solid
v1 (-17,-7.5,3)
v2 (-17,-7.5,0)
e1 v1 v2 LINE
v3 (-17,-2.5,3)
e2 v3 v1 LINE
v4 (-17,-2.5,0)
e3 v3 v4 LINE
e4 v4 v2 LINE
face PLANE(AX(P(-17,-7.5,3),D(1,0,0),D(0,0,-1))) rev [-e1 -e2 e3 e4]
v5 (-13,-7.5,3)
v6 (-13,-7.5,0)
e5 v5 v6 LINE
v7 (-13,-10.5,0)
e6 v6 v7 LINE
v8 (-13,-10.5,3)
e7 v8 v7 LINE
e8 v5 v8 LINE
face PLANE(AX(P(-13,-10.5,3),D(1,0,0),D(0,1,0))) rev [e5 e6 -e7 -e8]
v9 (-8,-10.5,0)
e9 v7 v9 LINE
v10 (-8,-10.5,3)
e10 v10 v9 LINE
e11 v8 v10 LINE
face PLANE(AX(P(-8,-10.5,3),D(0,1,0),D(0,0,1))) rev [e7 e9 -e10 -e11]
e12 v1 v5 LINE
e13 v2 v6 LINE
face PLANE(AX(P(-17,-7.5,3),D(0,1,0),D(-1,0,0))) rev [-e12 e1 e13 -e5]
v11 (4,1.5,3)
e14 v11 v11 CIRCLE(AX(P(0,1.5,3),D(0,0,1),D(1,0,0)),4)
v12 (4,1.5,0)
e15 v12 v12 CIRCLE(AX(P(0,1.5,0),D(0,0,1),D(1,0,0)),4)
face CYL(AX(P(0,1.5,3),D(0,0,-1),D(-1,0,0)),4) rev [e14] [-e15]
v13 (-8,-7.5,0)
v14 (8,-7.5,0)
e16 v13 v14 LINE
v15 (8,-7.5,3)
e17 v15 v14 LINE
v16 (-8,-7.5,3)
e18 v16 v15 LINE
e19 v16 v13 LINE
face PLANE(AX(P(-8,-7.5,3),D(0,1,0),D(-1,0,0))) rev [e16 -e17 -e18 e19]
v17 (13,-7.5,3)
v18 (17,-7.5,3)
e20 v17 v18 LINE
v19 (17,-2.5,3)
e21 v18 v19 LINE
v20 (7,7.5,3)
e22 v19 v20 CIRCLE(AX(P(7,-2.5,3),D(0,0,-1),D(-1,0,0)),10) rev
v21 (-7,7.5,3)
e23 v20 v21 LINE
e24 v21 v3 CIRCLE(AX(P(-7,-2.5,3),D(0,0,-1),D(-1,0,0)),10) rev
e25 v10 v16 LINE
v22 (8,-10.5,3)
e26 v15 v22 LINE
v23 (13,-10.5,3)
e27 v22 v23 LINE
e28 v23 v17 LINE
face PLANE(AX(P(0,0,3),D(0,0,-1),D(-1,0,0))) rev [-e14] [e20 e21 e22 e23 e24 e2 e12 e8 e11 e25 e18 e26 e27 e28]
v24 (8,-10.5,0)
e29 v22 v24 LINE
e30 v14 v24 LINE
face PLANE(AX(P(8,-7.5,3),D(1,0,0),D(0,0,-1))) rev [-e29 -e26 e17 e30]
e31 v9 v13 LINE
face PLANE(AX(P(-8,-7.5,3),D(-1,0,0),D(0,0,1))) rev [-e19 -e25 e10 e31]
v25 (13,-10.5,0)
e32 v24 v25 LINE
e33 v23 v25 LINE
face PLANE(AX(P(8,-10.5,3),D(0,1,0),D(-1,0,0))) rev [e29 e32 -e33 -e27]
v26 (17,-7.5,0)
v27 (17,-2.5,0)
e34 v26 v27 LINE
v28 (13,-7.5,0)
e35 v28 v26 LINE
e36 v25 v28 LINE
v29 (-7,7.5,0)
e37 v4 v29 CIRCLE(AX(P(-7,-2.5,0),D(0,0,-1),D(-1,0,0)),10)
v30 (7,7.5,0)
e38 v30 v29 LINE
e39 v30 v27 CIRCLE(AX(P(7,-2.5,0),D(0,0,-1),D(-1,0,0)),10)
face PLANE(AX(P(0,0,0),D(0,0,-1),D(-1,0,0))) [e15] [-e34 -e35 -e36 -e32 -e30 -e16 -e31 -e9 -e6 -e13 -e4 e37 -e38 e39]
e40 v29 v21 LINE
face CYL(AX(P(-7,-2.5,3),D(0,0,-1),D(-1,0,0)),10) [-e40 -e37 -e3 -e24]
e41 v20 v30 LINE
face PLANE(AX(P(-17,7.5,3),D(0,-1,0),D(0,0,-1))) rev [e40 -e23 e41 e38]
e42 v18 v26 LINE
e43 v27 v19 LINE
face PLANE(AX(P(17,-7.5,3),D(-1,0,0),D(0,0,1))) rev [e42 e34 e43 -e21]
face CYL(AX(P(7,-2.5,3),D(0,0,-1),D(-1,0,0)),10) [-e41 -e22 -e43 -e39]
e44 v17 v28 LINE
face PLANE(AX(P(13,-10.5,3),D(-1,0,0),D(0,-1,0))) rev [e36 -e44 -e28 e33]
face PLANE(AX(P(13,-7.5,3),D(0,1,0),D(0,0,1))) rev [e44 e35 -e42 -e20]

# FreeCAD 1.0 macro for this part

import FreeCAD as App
import Part
import Sketcher

V = App.Vector
Q = App.Units.Quantity


def edges_at(feature, points):
    """Names of the edges that pass closest to the given points."""
    edges = feature.Shape.Edges
    near = lambda p: min(range(len(edges)), key=lambda i: edges[i].distToShape(Part.Vertex(*p))[0])
    return sorted({f"Edge{near(p) + 1}" for p in points})

doc = App.newDocument("Part")
body = doc.addObject("PartDesign::Body", "Body")

# Sketch on XY plane
sketch1 = doc.addObject("Sketcher::SketchObject", "Sketch")
body.addObject(sketch1)
sketch1.AttachmentSupport = (doc.XY_Plane, [""])
sketch1.MapMode = "FlatFace"
sketch1.addGeometry([
    Part.LineSegment(V(-17, -7.5, 0), V(-13, -7.5, 0)),  # 0
    Part.LineSegment(V(-13, -7.5, 0), V(-13, -10.5, 0)),  # 1
    Part.LineSegment(V(-13, -10.5, 0), V(-8, -10.5, 0)),  # 2
    Part.LineSegment(V(-8, -10.5, 0), V(-8, -7.5, 0)),  # 3
    Part.LineSegment(V(-8, -7.5, 0), V(8, -7.5, 0)),  # 4
    Part.LineSegment(V(8, -7.5, 0), V(8, -10.5, 0)),  # 5
    Part.LineSegment(V(8, -10.5, 0), V(13, -10.5, 0)),  # 6
    Part.LineSegment(V(13, -10.5, 0), V(13, -7.5, 0)),  # 7
    Part.LineSegment(V(13, -7.5, 0), V(17, -7.5, 0)),  # 8
    Part.LineSegment(V(17, -7.5, 0), V(17, 7.5, 0)),  # 9
    Part.LineSegment(V(17, 7.5, 0), V(-17, 7.5, 0)),  # 10
    Part.LineSegment(V(-17, 7.5, 0), V(-17, -7.5, 0)),  # 11
    Part.Circle(V(0, 1.5, 0), V(0, 0, 1), 4),  # 12
], False)
sketch1.addConstraint([
    Sketcher.Constraint("Coincident", 0, 2, 1, 1),
    Sketcher.Constraint("Coincident", 1, 2, 2, 1),
    Sketcher.Constraint("Coincident", 2, 2, 3, 1),
    Sketcher.Constraint("Coincident", 3, 2, 4, 1),
    Sketcher.Constraint("Coincident", 4, 2, 5, 1),
    Sketcher.Constraint("Coincident", 5, 2, 6, 1),
    Sketcher.Constraint("Coincident", 6, 2, 7, 1),
    Sketcher.Constraint("Coincident", 7, 2, 8, 1),
    Sketcher.Constraint("Coincident", 8, 2, 9, 1),
    Sketcher.Constraint("Coincident", 9, 2, 10, 1),
    Sketcher.Constraint("Coincident", 10, 2, 11, 1),
    Sketcher.Constraint("Coincident", 11, 2, 0, 1),
    Sketcher.Constraint("Horizontal", 0),
    Sketcher.Constraint("Vertical", 1),
    Sketcher.Constraint("Horizontal", 2),
    Sketcher.Constraint("Vertical", 3),
    Sketcher.Constraint("Horizontal", 4),
    Sketcher.Constraint("Vertical", 5),
    Sketcher.Constraint("Horizontal", 6),
    Sketcher.Constraint("Vertical", 7),
    Sketcher.Constraint("Horizontal", 8),
    Sketcher.Constraint("Vertical", 9),
    Sketcher.Constraint("Horizontal", 10),
    Sketcher.Constraint("Vertical", 11),
    Sketcher.Constraint("Symmetric", 8, 2, 10, 2, -1, 1),
    Sketcher.Constraint("Symmetric", 2, 2, 5, 2, -2),
    Sketcher.Constraint("Symmetric", 0, 2, 7, 2, -2),
    Sketcher.Constraint("PointOnObject", 12, 3, -2),
    Sketcher.Constraint("Horizontal", 0, 2, 3, 2),
    Sketcher.Constraint("Diameter", 12, Q("8 mm")),
    Sketcher.Constraint("DistanceX", 0, 1, 0, 2, Q("4 mm")),
    Sketcher.Constraint("DistanceX", 2, 1, 2, 2, Q("5 mm")),
    Sketcher.Constraint("DistanceX", 4, 1, 4, 2, Q("16 mm")),
    Sketcher.Constraint("DistanceY", 1, 2, 1, 1, Q("3 mm")),
    Sketcher.Constraint("DistanceY", 9, 1, 9, 2, Q("15 mm")),
    Sketcher.Constraint("DistanceY", 0, 2, 12, 3, Q("9 mm")),
])
pad1 = doc.addObject("PartDesign::Pad", "Pad")
body.addObject(pad1)
pad1.Profile = sketch1
pad1.Length = 3
doc.recompute()

fillet = doc.addObject("PartDesign::Fillet", "Fillet")
body.addObject(fillet)
fillet.Base = (pad1, edges_at(pad1, [(-17, 7.5, 1.5), (17, 7.5, 1.5)]))
fillet.Radius = 10

doc.recompute()
